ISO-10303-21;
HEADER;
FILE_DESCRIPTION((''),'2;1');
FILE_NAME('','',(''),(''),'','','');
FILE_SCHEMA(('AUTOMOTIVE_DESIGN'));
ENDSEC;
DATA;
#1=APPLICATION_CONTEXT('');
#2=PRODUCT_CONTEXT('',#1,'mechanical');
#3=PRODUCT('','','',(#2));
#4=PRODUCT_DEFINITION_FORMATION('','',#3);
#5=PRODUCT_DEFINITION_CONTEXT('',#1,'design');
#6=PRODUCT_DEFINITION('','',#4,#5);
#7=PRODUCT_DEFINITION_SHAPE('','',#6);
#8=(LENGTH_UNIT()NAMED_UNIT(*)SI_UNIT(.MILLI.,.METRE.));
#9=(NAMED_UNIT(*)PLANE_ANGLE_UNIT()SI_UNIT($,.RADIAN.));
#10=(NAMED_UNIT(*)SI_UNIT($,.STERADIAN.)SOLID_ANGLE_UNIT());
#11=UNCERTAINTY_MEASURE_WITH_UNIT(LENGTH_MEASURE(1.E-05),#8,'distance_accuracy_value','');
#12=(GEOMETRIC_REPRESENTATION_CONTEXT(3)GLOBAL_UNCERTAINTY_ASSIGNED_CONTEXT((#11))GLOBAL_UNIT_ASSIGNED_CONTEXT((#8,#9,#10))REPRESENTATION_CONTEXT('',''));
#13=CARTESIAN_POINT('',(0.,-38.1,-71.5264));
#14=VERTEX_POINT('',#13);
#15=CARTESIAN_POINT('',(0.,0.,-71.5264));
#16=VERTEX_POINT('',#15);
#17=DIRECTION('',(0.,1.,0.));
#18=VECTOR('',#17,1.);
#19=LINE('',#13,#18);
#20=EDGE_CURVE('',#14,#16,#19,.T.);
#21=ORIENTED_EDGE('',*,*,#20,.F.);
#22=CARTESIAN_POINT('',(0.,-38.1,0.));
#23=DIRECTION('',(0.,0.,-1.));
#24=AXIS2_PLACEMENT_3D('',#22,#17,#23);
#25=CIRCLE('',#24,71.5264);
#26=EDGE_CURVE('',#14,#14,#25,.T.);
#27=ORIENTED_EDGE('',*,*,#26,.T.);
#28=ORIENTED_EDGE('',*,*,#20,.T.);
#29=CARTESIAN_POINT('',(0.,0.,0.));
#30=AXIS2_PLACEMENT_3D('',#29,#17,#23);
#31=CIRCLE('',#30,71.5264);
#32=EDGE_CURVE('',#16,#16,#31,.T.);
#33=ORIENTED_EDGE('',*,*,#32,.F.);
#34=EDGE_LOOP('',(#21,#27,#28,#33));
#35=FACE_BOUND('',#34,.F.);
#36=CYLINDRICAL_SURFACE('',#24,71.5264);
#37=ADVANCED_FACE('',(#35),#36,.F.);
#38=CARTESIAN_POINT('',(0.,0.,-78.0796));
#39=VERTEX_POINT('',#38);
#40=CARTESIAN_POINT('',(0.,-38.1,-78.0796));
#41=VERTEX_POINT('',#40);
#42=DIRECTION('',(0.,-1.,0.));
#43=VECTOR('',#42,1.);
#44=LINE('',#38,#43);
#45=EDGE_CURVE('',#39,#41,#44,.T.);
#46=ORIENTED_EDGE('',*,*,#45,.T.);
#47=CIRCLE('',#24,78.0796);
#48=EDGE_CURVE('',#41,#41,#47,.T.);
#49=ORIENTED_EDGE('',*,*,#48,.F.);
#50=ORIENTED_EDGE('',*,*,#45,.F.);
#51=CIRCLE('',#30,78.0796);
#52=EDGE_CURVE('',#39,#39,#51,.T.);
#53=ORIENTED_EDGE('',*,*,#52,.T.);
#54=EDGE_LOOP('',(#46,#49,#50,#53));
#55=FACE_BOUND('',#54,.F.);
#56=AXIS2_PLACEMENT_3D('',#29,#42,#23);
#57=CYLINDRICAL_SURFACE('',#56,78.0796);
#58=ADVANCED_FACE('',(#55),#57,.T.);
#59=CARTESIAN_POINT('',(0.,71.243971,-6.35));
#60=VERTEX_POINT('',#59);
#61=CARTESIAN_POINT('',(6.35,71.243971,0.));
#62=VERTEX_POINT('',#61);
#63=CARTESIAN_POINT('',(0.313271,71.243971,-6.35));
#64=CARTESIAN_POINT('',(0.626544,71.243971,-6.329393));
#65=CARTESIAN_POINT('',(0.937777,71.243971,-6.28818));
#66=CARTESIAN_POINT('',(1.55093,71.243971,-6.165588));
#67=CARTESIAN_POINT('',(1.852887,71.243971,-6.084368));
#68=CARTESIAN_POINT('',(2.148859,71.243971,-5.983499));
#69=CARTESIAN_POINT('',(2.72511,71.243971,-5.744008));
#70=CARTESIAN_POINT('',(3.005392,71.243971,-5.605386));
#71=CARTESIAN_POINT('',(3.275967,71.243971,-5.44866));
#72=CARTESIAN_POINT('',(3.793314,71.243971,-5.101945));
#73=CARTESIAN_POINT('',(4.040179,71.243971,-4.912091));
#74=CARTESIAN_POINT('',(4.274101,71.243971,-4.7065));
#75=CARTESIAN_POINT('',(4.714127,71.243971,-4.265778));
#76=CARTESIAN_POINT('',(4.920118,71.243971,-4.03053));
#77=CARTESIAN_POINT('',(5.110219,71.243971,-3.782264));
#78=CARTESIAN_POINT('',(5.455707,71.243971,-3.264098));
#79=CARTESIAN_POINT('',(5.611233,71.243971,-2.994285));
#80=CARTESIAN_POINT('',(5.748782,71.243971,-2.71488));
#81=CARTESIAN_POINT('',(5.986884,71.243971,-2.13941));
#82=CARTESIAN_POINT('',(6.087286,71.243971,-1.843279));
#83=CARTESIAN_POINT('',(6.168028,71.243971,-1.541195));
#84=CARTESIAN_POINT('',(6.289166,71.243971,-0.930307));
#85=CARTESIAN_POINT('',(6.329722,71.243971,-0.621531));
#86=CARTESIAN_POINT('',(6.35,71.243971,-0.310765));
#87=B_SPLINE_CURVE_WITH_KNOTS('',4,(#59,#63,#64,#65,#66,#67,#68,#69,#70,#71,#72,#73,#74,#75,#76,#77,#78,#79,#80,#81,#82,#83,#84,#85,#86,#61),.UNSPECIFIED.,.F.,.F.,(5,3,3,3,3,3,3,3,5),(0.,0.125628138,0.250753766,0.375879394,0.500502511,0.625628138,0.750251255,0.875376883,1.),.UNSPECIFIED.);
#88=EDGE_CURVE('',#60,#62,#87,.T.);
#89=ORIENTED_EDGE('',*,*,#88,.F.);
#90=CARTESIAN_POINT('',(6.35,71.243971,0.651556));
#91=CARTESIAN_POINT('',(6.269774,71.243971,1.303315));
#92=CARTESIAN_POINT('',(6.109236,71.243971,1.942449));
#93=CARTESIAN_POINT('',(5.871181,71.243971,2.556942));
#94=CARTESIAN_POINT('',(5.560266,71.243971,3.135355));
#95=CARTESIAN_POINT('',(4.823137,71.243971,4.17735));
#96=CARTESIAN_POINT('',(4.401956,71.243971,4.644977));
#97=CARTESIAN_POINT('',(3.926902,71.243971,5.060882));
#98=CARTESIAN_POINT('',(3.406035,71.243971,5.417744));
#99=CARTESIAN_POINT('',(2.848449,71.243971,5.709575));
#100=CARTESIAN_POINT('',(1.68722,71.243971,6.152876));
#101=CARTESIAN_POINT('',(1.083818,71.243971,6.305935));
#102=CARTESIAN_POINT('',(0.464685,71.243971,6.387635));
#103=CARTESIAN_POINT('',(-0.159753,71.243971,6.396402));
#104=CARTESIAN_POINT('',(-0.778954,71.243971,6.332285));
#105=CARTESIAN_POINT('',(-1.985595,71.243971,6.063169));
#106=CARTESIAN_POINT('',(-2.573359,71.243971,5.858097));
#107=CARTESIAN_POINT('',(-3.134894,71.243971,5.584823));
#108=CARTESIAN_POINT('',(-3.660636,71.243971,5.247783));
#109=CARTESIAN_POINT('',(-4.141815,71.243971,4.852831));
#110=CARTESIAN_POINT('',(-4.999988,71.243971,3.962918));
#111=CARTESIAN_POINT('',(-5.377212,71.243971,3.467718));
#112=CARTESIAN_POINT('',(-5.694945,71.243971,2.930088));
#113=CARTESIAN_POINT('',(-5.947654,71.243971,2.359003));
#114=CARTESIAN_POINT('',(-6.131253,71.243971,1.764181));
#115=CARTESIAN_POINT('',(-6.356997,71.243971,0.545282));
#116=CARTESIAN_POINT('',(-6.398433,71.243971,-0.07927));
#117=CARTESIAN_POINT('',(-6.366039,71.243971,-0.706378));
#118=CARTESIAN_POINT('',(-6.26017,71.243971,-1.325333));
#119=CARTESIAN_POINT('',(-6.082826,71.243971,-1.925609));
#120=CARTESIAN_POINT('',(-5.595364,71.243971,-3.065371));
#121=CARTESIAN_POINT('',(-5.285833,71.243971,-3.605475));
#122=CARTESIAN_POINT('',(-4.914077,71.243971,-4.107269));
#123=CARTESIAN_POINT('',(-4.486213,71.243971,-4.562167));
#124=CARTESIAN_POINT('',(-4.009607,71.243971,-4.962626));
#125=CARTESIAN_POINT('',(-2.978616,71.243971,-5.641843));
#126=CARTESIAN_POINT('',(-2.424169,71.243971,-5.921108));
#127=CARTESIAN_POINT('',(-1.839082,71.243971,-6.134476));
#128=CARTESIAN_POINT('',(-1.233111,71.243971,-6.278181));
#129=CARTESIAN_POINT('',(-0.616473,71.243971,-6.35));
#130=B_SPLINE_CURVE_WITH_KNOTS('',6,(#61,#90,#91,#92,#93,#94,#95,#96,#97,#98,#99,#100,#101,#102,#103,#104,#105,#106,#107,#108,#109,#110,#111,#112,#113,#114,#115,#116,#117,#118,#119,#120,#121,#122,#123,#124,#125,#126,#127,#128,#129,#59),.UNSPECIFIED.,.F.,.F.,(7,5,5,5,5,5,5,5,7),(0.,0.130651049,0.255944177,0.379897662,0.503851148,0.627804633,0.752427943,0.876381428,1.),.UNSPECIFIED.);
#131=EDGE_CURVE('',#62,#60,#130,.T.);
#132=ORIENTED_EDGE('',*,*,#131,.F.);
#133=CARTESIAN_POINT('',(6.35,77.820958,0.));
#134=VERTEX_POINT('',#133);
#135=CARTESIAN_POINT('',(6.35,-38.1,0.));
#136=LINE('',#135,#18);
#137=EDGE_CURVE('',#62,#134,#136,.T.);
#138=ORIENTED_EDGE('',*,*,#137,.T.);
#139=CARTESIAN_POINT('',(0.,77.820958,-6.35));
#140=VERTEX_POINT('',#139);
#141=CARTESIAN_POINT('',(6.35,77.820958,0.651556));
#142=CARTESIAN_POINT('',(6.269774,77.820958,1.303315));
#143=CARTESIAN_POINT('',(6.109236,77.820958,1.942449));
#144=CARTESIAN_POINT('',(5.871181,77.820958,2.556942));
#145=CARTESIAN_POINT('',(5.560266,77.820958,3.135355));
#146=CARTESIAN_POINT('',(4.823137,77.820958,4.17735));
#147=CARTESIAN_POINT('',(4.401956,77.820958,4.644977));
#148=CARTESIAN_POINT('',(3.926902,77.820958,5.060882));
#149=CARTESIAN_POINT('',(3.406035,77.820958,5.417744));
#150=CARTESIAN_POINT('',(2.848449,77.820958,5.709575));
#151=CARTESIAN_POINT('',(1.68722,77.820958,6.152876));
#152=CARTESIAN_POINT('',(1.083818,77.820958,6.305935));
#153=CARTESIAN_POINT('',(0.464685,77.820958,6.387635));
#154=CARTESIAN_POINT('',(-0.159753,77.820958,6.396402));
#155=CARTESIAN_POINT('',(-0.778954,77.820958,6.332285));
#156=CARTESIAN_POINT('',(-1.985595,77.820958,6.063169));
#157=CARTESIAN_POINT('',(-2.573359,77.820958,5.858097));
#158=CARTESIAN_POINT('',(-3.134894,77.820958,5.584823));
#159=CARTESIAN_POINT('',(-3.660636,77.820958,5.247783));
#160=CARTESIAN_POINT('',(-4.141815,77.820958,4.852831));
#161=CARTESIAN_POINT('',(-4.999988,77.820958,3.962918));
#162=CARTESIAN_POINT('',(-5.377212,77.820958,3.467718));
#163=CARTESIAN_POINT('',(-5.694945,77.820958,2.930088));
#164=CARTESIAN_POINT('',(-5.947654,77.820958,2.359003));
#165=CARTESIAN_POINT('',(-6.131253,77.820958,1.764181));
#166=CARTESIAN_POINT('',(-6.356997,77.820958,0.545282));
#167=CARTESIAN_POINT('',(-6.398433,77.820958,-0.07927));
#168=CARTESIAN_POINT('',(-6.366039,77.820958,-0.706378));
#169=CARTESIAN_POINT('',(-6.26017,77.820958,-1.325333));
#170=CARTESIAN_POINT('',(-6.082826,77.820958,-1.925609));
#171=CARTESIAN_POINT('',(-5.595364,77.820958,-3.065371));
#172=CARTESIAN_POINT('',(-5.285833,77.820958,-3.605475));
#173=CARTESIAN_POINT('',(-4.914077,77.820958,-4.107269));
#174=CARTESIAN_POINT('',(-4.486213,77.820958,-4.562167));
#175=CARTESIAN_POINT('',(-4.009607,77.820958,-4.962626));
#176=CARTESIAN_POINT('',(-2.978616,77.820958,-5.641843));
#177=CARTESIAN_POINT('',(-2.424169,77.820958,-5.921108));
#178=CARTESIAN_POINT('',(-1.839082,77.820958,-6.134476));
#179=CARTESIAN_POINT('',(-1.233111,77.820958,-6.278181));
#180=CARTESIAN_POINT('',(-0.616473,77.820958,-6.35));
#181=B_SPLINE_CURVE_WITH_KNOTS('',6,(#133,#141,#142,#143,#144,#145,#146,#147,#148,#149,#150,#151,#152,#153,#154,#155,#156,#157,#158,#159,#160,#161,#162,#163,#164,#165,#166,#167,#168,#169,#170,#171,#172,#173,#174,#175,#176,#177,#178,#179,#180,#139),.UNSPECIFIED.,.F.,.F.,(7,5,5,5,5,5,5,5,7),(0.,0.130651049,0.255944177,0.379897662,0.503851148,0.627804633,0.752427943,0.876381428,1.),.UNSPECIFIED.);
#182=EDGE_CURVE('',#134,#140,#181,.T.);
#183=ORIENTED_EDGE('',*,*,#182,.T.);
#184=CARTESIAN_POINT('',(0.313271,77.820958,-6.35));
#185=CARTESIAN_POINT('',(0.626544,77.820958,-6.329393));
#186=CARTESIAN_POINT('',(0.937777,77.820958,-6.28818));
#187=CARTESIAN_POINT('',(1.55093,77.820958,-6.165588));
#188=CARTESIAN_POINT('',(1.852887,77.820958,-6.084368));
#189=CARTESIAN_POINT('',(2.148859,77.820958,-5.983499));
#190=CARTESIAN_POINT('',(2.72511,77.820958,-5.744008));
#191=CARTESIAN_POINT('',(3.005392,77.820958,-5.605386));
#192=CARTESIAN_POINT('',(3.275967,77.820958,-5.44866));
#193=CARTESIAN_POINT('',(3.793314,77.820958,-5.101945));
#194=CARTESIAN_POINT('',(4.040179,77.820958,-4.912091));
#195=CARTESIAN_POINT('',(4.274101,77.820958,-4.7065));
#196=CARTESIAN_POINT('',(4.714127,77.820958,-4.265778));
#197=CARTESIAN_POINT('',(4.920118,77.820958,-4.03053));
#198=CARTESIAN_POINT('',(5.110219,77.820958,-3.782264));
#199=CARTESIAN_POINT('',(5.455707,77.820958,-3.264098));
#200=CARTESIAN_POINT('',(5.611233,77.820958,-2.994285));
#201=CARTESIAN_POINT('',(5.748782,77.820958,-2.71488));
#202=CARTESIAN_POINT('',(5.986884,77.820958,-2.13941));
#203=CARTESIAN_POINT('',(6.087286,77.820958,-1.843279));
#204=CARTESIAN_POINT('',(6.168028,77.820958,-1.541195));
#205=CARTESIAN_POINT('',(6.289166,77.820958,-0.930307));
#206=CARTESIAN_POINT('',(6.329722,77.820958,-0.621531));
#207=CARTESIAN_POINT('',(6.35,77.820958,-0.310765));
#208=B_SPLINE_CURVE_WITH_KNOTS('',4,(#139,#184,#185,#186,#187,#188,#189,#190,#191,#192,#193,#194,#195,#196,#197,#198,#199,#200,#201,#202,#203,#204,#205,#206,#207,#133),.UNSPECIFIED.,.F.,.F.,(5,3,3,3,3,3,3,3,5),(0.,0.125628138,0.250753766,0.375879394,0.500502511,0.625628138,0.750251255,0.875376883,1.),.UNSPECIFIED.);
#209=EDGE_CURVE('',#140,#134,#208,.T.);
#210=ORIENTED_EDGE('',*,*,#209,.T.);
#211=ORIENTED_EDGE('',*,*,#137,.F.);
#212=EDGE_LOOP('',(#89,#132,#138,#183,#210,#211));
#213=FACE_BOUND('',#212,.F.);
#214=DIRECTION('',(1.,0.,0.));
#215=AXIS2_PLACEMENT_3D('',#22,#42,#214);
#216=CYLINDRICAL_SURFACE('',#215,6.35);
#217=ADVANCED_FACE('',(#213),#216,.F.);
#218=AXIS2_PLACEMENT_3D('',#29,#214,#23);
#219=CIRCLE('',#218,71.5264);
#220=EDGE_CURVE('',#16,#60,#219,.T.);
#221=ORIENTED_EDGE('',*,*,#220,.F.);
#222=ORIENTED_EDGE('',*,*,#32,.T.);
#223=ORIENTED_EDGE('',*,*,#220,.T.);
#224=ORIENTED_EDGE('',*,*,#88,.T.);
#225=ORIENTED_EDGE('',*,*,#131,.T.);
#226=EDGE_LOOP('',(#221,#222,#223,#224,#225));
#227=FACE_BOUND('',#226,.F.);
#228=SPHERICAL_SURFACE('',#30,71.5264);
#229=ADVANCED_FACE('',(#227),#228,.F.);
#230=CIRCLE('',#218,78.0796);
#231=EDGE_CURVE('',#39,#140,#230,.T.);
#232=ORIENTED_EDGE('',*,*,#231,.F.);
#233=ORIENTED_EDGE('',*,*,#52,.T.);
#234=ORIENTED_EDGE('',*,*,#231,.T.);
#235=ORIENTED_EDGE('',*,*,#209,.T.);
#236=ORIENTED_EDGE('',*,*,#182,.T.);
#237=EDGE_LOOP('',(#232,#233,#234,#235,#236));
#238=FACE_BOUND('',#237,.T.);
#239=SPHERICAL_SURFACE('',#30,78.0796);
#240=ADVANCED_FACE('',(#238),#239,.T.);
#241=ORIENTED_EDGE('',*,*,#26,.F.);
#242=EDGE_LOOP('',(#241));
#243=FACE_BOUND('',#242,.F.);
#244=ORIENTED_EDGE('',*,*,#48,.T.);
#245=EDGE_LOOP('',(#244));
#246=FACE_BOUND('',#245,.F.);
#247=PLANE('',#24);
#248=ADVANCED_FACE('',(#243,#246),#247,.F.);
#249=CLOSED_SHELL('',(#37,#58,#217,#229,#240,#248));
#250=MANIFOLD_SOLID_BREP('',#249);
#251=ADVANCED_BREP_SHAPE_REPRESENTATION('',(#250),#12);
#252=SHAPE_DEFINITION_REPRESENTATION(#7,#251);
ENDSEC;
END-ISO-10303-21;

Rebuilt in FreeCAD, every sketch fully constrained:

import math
import FreeCAD as App
import Part
import Sketcher

V = App.Vector
Q = App.Units.Quantity

doc = App.newDocument("Part")
body = doc.addObject("PartDesign::Body", "Body")

# Sketch on YZ plane
sketch1 = body.newObject("Sketcher::SketchObject", "Sketch")
sketch1.AttachmentSupport = (doc.getObject("YZ_Plane"), [""])
sketch1.MapMode = "FlatFace"
sketch1.addGeometry([
    Part.LineSegment(V(-38.1, -78.0796, 0), V(0, -78.0796, 0)),  # 0
    Part.ArcOfCircle(Part.Circle(V(0, 0, 0), V(0, 0, 1), 78.0796), math.radians(-90), math.radians(0)),  # 1
    Part.LineSegment(V(78.0796, 0, 0), V(71.5264, 0, 0)),  # 2
    Part.ArcOfCircle(Part.Circle(V(0, 0, 0), V(0, 0, 1), 71.5264), math.radians(-90), math.radians(0)),  # 3
    Part.LineSegment(V(0, -71.5264, 0), V(-38.1, -71.5264, 0)),  # 4
    Part.LineSegment(V(-38.1, -71.5264, 0), V(-38.1, -78.0796, 0)),  # 5
], False)
sketch1.addConstraint([
    Sketcher.Constraint("Tangent", 0, 2, 1, 1),
    Sketcher.Constraint("Coincident", 1, 2, 2, 1),
    Sketcher.Constraint("Coincident", 2, 2, 3, 2),
    Sketcher.Constraint("Tangent", 3, 1, 4, 1),
    Sketcher.Constraint("Coincident", 4, 2, 5, 1),
    Sketcher.Constraint("Coincident", 5, 2, 0, 1),
    Sketcher.Constraint("Horizontal", 0),
    Sketcher.Constraint("Horizontal", 2),
    Sketcher.Constraint("Horizontal", 4),
    Sketcher.Constraint("Vertical", 5),
    Sketcher.Constraint("Coincident", 1, 3, -1, 1),
    Sketcher.Constraint("Coincident", 3, 3, -1, 1),
    Sketcher.Constraint("PointOnObject", 1, 2, -1),
    Sketcher.Constraint("DistanceX", 0, 1, 0, 2, Q("1.5 in")),
    Sketcher.Constraint("Radius", 3, Q("2.816 in")),
    Sketcher.Constraint("DistanceX", 2, 2, 2, 1, Q("0.258 in")),
])
revolution = body.newObject("PartDesign::Revolution", "Revolution")
revolution.Profile = sketch1
revolution.ReferenceAxis = (sketch1, ["H_Axis"])
revolution.Angle = 360

# Sketch on XZ plane
sketch2 = body.newObject("Sketcher::SketchObject", "Sketch001")
sketch2.AttachmentSupport = (doc.getObject("XZ_Plane"), [""])
sketch2.MapMode = "FlatFace"
sketch2.AttachmentOffset = App.Placement(V(0, 0, 1.5 * 25.4), App.Rotation())
sketch2.addGeometry(Part.Circle(V(0, 0, 0), V(0, 0, 1), 6.35), False)
sketch2.addConstraint([
    Sketcher.Constraint("Coincident", 0, 3, -1, 1),
    Sketcher.Constraint("Diameter", 0, Q("0.5 in")),
])
pocket1 = body.newObject("PartDesign::Pocket", "Pocket")
pocket1.Profile = sketch2
pocket1.Type = "ThroughAll"

doc.recompute()
